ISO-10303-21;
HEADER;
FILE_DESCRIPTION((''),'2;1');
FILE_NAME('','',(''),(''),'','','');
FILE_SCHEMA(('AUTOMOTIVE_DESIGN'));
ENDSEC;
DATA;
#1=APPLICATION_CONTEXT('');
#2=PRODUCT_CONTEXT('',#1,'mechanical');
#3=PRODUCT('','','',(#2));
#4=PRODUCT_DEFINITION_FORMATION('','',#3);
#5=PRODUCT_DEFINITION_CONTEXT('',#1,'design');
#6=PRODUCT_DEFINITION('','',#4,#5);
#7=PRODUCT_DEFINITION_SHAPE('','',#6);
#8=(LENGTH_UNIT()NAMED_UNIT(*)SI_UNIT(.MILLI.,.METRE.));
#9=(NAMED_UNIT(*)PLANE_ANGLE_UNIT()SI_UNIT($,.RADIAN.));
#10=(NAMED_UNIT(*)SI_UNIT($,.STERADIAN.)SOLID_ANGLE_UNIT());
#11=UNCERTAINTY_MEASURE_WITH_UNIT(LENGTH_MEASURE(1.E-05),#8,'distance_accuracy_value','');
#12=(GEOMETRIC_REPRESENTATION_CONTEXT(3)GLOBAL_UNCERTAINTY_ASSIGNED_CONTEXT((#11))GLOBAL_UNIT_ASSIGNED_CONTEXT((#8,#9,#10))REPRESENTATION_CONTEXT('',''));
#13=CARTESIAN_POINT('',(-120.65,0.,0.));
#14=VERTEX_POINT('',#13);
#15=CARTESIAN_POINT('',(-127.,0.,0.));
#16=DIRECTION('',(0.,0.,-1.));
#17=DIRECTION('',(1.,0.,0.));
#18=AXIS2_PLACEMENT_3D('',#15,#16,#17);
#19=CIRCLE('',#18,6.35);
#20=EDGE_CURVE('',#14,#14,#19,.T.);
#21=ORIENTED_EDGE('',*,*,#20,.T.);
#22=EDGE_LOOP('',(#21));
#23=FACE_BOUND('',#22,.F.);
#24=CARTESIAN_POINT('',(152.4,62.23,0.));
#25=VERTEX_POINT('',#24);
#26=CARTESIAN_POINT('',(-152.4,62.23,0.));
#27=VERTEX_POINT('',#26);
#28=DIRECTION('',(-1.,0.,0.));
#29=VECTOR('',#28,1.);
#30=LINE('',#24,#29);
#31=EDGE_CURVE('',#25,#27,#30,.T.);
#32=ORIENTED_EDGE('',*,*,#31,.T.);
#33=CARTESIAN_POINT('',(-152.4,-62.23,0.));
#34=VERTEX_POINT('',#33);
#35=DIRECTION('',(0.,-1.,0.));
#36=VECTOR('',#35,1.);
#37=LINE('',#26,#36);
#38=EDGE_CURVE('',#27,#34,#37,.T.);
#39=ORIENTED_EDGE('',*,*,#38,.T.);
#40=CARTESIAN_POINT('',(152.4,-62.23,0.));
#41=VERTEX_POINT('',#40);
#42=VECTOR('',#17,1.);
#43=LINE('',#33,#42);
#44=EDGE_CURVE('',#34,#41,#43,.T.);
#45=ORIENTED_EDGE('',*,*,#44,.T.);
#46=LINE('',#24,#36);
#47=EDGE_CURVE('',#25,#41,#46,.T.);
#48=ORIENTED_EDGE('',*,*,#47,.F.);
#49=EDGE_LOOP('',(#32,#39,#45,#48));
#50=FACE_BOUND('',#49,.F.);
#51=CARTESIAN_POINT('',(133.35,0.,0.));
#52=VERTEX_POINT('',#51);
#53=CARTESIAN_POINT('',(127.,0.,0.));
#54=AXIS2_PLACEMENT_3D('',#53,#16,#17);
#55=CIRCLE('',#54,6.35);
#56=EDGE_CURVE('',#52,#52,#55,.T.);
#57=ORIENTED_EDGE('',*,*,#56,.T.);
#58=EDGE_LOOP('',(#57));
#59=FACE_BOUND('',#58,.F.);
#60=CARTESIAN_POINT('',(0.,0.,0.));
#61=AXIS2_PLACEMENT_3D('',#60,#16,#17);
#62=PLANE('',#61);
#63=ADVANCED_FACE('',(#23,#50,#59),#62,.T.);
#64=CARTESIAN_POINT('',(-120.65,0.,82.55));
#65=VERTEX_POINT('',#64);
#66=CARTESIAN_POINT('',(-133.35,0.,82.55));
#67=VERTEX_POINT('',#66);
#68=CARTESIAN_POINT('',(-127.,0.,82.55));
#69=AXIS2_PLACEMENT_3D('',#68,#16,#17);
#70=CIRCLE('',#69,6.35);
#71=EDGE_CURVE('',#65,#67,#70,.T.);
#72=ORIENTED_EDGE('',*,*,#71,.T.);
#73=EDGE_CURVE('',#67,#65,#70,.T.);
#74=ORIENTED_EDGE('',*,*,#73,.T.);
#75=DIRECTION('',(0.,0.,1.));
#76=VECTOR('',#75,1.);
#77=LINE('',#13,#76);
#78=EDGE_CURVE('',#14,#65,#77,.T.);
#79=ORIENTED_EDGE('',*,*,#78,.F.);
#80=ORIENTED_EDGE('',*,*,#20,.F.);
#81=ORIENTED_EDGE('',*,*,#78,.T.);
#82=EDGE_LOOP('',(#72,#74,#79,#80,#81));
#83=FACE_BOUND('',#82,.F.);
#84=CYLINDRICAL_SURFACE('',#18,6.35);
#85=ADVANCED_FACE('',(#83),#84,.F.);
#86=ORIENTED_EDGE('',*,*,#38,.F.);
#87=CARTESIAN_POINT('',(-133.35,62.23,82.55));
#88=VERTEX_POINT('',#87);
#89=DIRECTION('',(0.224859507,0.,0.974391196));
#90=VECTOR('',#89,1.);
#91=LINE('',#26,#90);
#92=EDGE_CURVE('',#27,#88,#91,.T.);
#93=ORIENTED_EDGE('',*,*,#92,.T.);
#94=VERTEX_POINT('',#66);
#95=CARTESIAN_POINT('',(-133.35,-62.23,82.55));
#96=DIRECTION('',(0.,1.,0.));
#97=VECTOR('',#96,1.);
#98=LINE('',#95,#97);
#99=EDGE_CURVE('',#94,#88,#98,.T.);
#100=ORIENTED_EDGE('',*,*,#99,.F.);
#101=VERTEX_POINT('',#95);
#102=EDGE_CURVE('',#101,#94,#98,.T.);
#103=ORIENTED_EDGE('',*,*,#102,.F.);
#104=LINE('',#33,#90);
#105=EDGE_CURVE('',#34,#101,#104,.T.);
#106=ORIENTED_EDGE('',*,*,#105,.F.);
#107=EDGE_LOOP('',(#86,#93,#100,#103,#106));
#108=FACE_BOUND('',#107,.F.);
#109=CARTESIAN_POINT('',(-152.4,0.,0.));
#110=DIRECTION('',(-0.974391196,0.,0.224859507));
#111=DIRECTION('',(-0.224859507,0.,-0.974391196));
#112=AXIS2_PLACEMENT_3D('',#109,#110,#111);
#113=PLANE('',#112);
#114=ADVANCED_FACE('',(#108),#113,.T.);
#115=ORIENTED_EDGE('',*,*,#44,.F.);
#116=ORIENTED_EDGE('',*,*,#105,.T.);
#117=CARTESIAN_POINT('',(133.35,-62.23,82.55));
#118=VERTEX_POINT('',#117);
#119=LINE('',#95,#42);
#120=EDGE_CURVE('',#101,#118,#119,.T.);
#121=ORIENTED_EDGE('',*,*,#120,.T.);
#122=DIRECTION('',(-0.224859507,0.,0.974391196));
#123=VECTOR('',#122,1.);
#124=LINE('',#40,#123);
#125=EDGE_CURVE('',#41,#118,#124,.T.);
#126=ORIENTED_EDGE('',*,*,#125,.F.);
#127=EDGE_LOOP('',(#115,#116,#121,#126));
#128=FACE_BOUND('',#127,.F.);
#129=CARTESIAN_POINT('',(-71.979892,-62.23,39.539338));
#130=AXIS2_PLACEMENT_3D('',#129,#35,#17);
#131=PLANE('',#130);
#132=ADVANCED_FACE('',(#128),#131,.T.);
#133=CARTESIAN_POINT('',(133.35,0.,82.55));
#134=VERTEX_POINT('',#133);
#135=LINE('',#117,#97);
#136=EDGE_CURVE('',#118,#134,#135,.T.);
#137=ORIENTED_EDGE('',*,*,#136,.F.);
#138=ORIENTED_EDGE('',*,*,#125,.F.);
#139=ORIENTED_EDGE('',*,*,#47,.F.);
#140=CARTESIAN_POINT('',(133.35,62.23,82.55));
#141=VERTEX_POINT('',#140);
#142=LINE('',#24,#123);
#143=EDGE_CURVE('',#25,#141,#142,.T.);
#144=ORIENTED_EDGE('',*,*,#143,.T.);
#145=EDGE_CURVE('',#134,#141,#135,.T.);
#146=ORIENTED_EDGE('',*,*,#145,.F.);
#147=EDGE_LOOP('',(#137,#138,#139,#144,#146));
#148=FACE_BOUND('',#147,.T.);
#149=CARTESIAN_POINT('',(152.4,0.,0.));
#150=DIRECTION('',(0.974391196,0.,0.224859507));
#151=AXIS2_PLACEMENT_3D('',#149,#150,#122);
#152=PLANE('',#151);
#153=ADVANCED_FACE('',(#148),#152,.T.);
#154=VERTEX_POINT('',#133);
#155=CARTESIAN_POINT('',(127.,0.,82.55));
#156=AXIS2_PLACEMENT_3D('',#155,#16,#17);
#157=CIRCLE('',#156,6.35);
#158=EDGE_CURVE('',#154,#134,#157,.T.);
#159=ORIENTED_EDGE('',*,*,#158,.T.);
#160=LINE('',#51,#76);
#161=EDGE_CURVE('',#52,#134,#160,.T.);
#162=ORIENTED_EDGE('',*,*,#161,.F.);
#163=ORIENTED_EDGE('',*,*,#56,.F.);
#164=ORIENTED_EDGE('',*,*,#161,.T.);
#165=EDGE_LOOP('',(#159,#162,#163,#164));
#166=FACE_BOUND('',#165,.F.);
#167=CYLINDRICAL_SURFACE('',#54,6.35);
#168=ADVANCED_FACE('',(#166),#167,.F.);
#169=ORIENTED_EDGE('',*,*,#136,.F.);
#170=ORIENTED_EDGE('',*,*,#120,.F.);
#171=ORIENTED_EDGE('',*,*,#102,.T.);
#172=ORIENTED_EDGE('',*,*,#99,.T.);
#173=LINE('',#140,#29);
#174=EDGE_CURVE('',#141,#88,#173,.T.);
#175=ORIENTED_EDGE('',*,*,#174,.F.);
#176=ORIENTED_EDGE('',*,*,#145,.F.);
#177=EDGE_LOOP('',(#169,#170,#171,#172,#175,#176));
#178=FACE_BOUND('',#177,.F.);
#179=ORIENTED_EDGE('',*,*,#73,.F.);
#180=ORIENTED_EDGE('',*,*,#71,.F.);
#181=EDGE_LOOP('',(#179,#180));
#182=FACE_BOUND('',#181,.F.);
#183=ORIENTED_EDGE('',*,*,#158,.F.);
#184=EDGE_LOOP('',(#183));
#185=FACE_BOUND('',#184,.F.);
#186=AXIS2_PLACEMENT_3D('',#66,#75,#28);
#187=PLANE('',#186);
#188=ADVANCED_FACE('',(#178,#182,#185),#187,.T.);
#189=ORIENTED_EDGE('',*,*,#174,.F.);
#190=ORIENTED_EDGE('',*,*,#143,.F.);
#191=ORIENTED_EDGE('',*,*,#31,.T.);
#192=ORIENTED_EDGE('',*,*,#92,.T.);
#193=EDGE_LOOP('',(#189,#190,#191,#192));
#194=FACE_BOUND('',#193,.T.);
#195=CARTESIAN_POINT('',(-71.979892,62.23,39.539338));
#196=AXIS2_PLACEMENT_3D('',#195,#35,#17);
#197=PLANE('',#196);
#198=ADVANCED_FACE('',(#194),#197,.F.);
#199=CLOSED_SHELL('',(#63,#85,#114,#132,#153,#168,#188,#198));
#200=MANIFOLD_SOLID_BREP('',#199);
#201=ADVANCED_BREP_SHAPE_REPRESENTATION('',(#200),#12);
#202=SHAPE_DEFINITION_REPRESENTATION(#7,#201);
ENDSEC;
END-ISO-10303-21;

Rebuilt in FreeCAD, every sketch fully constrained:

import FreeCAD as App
import Part
import Sketcher
Q = App.Units.Quantity


def add_polygon(sketch, points):
    """Adds a closed chain of lines whose ends are joined by coincident constraints."""
    first, n = sketch.GeometryCount, len(points)
    for a, b in zip(points, points[1:] + points[:1]):
        sketch.addGeometry(Part.LineSegment(App.Vector(*a, 0), App.Vector(*b, 0)), False)
    for i in range(n):
        sketch.addConstraint(Sketcher.Constraint("Coincident", first + i, 2, first + (i + 1) % n, 1))

doc = App.newDocument("Part")
body = doc.addObject("PartDesign::Body", "Body")

# Sketch on XZ plane
sketch1 = body.newObject("Sketcher::SketchObject", "Sketch")
sketch1.AttachmentSupport = (doc.getObject("XZ_Plane"), [""])
sketch1.MapMode = "FlatFace"
add_polygon(sketch1, [(0, 83), (0, 0), (152, 0), (133, 83)])  # lines 0-3
sketch1.addConstraint(Sketcher.Constraint("Vertical", 0))
sketch1.addConstraint(Sketcher.Constraint("Horizontal", 1))
sketch1.addConstraint(Sketcher.Constraint("Horizontal", 3))
sketch1.addConstraint(Sketcher.Constraint("Coincident", 0, 2, -1, 1))
sketch1.addConstraint(Sketcher.Constraint("DistanceX", 1, 1, 1, 2, Q("6 in")))
sketch1.addConstraint(Sketcher.Constraint("DistanceX", 3, 2, 3, 1, Q("5.25 in")))
sketch1.addConstraint(Sketcher.Constraint("DistanceY", 0, 2, 0, 1, Q("3.25 in")))
pad1 = body.newObject("PartDesign::Pad", "Pad")
pad1.Profile = sketch1
pad1.Length = Q("4.9 in")
pad1.Midplane = True
body2 = doc.addObject("PartDesign::Body", "Body001")
doc.recompute()

body2.BaseFeature = body
doc.recompute()

mirroring = doc.addObject("Part::Mirroring", "Mirroring")
mirroring.Source = body
mirroring.Base = App.Vector(0, 0, 0)
mirroring.Normal = App.Vector(1, 0, 0)
body3 = doc.addObject("PartDesign::Body", "Body002")
body3.BaseFeature = mirroring
boolean = body2.newObject("PartDesign::Boolean", "Boolean")
boolean.Type = "Fuse"
boolean.addObjects([body3])
doc.recompute()

# Sketch on XY plane
sketch2 = body2.newObject("Sketcher::SketchObject", "Sketch001")
sketch2.AttachmentSupport = (doc.getObject("XY_Plane001"), [""])
sketch2.MapMode = "FlatFace"
sketch2.addGeometry(Part.Circle(App.Vector(127, 0, 0), App.Vector(0, 0, 1), 6), False)
sketch2.addGeometry(Part.Circle(App.Vector(-127, 0, 0), App.Vector(0, 0, 1), 6), False)
sketch2.addConstraint(Sketcher.Constraint("Equal", 0, 1))
sketch2.addConstraint(Sketcher.Constraint("Symmetric", 0, 3, 1, 3, -1, 1))
sketch2.addConstraint(Sketcher.Constraint("PointOnObject", 0, 3, -1))
sketch2.addConstraint(Sketcher.Constraint("Diameter", 0, Q("0.5 in")))
sketch2.addConstraint(Sketcher.Constraint("DistanceX", -1, 1, 0, 3, Q("5 in")))
pocket1 = body2.newObject("PartDesign::Pocket", "Pocket")
pocket1.Profile = sketch2
pocket1.Type = "ThroughAll"
pocket1.Reversed = True
mirroring.Visibility = False

doc.recompute()
